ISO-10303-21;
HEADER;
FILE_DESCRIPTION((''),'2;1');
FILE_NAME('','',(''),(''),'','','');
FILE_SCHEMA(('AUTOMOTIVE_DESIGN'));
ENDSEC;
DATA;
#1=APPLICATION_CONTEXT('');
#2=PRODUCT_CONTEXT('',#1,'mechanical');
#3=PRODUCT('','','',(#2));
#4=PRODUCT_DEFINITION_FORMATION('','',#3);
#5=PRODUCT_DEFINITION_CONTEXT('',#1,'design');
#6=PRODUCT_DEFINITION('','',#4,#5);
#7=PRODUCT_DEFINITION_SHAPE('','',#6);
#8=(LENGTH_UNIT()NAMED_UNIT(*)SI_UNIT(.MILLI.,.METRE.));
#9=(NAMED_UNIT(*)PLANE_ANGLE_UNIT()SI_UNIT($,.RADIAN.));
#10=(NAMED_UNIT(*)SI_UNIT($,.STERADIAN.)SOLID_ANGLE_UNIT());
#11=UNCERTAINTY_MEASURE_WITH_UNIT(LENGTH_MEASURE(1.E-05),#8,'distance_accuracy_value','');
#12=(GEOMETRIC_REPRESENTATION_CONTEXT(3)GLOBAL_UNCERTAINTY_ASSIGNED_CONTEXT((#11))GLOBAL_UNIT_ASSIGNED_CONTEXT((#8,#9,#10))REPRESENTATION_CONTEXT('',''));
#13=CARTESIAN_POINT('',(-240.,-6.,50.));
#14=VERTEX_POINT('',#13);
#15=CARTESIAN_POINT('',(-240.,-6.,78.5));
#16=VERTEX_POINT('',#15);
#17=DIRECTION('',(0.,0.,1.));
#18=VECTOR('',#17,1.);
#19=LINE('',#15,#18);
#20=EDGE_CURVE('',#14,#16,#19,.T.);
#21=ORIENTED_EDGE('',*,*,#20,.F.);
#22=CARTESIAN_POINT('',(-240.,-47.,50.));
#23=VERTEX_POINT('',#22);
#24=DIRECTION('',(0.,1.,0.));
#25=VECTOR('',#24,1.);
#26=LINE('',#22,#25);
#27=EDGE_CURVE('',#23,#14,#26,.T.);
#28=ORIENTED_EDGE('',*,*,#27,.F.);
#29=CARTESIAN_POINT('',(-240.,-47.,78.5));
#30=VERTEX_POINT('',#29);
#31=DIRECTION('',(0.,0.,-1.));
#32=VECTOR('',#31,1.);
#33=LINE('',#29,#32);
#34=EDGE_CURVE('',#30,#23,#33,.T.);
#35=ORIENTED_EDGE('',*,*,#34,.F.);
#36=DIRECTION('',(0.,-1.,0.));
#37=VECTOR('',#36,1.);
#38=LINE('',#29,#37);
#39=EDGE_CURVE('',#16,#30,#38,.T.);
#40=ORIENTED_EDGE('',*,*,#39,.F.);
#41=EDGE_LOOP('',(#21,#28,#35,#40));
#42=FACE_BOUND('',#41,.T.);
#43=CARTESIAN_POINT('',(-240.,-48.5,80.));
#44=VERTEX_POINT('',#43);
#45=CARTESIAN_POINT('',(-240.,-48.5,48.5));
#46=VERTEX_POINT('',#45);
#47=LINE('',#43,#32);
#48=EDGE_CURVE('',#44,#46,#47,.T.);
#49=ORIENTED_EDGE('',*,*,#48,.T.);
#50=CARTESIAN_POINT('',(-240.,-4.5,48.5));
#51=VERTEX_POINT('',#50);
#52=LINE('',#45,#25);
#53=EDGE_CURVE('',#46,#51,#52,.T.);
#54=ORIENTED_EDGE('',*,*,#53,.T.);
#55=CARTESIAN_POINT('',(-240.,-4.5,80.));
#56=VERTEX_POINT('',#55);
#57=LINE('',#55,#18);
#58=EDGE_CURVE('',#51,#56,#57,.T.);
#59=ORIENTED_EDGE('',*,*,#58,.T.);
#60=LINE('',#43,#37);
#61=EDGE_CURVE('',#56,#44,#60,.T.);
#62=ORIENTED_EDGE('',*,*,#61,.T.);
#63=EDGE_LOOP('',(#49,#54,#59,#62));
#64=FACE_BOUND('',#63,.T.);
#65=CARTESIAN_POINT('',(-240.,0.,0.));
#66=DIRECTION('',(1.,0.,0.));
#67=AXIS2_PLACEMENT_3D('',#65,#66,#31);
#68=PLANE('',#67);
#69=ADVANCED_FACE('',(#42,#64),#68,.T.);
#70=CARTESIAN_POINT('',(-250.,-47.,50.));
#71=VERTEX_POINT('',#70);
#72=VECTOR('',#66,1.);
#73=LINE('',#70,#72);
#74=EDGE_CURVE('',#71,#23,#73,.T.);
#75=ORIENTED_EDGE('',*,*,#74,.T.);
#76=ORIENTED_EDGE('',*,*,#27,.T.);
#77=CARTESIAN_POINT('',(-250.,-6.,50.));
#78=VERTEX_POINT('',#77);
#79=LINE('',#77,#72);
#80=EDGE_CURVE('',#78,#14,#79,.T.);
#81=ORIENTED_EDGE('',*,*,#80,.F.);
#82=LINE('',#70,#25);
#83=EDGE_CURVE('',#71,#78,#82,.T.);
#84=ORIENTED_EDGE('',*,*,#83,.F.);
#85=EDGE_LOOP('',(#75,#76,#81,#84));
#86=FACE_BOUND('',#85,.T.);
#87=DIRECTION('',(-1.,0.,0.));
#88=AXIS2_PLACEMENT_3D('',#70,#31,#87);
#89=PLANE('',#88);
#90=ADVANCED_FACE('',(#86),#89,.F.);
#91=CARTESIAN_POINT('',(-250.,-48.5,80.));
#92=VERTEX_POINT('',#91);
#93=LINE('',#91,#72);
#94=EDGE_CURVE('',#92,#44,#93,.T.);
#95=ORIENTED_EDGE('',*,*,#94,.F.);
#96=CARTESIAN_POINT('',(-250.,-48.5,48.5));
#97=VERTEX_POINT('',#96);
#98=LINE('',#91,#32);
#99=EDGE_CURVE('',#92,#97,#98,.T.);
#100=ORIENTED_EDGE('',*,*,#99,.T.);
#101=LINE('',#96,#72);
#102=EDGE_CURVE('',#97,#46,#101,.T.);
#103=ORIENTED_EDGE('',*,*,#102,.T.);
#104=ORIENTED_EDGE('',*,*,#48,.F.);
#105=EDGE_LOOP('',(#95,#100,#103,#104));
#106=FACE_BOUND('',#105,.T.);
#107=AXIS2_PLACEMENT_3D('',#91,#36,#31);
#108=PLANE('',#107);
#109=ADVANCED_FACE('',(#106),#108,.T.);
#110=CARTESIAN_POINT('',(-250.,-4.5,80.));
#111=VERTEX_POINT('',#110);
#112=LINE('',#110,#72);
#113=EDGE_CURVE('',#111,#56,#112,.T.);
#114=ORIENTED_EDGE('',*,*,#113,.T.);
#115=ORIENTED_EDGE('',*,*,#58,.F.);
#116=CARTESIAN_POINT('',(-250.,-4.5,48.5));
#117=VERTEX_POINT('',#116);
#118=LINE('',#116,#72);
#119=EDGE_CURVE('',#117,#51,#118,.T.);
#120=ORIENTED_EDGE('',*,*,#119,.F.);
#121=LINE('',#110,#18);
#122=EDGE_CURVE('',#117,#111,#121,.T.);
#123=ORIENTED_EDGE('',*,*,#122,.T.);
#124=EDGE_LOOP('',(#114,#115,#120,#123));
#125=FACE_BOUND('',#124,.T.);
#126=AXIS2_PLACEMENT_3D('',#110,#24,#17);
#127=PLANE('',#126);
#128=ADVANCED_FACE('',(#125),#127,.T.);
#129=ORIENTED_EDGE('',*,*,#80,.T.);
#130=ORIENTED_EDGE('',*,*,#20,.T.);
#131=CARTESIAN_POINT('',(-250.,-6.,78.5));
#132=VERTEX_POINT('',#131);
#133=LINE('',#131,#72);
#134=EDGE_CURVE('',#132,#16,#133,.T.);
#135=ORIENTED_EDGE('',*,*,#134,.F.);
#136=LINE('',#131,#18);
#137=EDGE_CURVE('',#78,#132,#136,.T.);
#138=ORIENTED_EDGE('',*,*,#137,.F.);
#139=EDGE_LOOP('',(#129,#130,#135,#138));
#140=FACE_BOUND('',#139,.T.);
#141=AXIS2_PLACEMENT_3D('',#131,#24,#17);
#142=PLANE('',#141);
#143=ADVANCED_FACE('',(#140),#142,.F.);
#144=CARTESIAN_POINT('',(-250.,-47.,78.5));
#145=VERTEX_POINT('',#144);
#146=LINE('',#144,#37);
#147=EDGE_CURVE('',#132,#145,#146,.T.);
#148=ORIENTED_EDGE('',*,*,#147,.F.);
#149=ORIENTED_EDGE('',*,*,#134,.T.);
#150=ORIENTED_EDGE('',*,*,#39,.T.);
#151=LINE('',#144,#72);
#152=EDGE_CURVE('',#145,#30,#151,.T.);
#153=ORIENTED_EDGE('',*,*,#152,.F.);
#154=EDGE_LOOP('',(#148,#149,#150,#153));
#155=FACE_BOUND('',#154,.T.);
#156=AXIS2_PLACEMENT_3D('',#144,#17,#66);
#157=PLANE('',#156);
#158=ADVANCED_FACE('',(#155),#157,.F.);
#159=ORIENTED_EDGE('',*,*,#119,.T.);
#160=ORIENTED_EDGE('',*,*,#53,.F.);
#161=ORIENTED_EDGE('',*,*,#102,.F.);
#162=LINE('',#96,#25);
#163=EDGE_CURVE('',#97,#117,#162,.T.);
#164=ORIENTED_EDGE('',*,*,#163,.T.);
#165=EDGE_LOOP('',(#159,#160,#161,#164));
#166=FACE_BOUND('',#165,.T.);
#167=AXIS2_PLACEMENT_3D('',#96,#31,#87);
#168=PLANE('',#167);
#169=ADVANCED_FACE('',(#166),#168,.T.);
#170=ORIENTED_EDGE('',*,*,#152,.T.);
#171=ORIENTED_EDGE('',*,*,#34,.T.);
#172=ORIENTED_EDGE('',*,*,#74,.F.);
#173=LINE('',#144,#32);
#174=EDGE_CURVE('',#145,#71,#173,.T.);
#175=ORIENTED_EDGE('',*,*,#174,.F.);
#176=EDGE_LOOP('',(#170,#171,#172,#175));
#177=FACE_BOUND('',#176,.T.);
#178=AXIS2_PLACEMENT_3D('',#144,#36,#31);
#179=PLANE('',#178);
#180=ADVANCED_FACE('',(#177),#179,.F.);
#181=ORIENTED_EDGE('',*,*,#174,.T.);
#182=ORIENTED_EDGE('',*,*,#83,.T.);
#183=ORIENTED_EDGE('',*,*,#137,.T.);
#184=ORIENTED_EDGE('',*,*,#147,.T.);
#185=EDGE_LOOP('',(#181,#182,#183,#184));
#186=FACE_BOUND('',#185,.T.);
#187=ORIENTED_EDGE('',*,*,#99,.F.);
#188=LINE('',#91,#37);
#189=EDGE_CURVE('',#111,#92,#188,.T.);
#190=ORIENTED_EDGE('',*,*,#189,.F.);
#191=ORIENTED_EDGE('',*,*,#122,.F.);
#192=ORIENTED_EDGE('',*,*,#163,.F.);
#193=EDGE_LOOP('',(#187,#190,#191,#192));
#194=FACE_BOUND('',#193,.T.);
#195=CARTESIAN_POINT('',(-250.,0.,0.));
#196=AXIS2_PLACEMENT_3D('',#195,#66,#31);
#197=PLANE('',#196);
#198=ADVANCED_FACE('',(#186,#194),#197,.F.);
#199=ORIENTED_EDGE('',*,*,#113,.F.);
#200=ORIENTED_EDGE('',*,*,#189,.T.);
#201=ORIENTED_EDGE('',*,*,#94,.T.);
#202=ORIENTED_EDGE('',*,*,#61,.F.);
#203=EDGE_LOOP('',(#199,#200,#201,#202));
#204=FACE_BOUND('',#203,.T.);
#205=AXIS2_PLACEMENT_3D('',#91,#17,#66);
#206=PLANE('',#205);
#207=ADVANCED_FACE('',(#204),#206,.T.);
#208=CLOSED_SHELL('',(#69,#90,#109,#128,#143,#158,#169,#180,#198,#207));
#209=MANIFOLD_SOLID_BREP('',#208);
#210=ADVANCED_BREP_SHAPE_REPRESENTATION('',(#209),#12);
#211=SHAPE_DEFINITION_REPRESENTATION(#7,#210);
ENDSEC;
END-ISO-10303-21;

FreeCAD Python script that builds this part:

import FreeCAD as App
import Part
import Sketcher

V = App.Vector


def add_polygon(sketch, points):
    """Adds a closed chain of lines whose ends are joined by coincident constraints."""
    first, n = sketch.GeometryCount, len(points)
    for a, b in zip(points, points[1:] + points[:1]):
        sketch.addGeometry(Part.LineSegment(App.Vector(*a, 0), App.Vector(*b, 0)), False)
    for i in range(n):
        sketch.addConstraint(Sketcher.Constraint("Coincident", first + i, 2, first + (i + 1) % n, 1))

doc = App.newDocument("Part")
params = doc.addObject("Spreadsheet::Sheet", "Params")
for row, (alias, value) in enumerate([
    ("sketch1_width", "44 mm"),
    ("sketch1_width2", "41 mm"),
    ("sketch1_height", "31.5 mm"),
    ("sketch1_height2", "28.5 mm"),
    ("pad1_length", "10 mm"),
], start=1):
    params.set(f"A{row}", alias)
    params.set(f"B{row}", "=" + value)
    params.setAlias(f"B{row}", alias)

body = doc.addObject("PartDesign::Body", "Body")

# Sketch on YZ plane
sketch1 = body.newObject("Sketcher::SketchObject", "Sketch")
sketch1.AttachmentSupport = (doc.getObject("YZ_Plane"), [""])
sketch1.MapMode = "FlatFace"
sketch1.AttachmentOffset = App.Placement(V(0, 0, -240), App.Rotation())
add_polygon(sketch1, [(-4, 80), (-48, 80), (-48, 48), (-4, 48)])  # lines 0-3
add_polygon(sketch1, [(-47, 50), (-47, 78), (-6, 78), (-6, 50)])  # lines 4-7
sketch1.addConstraint([
    Sketcher.Constraint("Horizontal", 0),
    Sketcher.Constraint("Vertical", 1),
    Sketcher.Constraint("Horizontal", 2),
    Sketcher.Constraint("Vertical", 3),
    Sketcher.Constraint("Vertical", 4),
    Sketcher.Constraint("Horizontal", 5),
    Sketcher.Constraint("Vertical", 6),
    Sketcher.Constraint("Horizontal", 7),
    Sketcher.Constraint("DistanceX", 0, 2, 0, 1, 44.0),
    Sketcher.Constraint("DistanceX", 5, 1, 5, 2, 41.0),
    Sketcher.Constraint("DistanceY", 1, 2, 1, 1, 31.5),
    Sketcher.Constraint("DistanceY", 4, 1, 4, 2, 28.5),
    Sketcher.Constraint("DistanceY", -1, 1, 0, 2, 80.0),
    Sketcher.Constraint("DistanceX", 4, 2, -1, 1, 47.0),
    Sketcher.Constraint("DistanceY", -1, 1, 6, 2, 50.0),
    Sketcher.Constraint("DistanceX", 0, 2, -1, 1, 48.5),
])
sketch1.setExpression("Constraints[16]", "Params.sketch1_width")
sketch1.setExpression("Constraints[17]", "Params.sketch1_width2")
sketch1.setExpression("Constraints[18]", "Params.sketch1_height")
sketch1.setExpression("Constraints[19]", "Params.sketch1_height2")
pad1 = body.newObject("PartDesign::Pad", "Pad")
pad1.Profile = sketch1
pad1.setExpression("Length", "Params.pad1_length")
pad1.Reversed = True

doc.recompute()
